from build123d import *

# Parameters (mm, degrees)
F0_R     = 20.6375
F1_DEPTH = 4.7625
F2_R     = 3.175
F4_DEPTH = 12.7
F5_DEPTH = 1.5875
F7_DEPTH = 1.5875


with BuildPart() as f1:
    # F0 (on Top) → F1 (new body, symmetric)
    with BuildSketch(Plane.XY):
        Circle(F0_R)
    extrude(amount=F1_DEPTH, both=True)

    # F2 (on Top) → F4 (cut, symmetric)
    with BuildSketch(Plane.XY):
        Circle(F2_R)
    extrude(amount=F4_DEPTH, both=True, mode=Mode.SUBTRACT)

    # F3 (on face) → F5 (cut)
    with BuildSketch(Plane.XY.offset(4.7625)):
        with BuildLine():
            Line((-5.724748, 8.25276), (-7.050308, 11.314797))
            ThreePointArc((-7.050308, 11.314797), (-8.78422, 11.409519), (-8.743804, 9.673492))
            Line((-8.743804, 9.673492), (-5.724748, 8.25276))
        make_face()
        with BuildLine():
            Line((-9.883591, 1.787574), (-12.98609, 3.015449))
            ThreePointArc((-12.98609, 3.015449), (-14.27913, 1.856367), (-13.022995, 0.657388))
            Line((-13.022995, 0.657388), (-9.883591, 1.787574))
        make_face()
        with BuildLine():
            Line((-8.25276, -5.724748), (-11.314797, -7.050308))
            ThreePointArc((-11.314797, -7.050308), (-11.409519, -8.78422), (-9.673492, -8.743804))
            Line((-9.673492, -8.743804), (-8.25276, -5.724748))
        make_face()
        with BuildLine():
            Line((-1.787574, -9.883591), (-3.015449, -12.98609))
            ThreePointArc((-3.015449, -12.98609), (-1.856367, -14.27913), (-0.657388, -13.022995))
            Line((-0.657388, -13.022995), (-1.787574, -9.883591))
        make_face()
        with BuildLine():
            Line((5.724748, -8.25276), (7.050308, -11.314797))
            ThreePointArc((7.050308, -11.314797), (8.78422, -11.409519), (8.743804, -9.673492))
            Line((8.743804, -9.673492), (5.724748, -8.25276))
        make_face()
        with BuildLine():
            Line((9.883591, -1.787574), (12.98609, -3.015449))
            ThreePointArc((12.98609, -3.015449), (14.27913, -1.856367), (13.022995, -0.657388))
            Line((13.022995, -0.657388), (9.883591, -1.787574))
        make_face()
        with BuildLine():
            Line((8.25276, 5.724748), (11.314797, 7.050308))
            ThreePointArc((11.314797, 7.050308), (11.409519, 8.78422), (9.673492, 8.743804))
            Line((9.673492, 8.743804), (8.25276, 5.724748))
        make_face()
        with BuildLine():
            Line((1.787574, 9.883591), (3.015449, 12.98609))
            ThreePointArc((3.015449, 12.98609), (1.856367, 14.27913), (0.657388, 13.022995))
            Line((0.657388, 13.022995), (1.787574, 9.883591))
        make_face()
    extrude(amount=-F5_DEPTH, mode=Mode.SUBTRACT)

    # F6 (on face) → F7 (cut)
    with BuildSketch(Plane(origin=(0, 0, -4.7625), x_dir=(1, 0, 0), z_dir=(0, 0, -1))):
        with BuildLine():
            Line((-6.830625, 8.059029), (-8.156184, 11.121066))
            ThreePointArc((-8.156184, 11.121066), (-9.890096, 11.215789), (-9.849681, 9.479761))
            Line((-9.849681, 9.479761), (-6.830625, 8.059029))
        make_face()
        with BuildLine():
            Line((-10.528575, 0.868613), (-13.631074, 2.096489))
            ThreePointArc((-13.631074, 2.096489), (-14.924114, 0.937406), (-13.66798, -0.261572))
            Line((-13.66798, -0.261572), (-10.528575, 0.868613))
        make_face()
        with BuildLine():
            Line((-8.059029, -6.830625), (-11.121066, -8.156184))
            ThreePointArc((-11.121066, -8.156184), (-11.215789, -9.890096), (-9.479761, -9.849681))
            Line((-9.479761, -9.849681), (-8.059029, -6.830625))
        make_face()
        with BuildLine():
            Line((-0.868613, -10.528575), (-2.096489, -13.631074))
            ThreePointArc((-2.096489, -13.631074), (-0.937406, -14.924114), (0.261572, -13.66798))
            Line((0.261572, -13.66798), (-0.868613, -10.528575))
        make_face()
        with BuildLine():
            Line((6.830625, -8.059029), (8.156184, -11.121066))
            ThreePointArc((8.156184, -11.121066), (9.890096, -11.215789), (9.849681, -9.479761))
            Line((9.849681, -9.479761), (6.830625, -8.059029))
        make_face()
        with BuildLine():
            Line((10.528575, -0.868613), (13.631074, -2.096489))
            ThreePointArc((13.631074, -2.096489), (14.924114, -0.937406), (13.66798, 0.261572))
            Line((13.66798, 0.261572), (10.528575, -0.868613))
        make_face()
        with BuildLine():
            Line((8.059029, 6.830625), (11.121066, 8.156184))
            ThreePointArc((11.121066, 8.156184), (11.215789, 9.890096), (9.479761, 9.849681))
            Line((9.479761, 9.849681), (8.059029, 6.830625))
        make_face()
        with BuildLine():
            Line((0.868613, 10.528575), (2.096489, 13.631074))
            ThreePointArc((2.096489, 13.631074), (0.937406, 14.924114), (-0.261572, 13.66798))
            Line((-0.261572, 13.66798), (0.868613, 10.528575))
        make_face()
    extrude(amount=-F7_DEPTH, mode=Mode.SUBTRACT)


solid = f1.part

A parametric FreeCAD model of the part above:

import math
import FreeCAD as App
import Part
import Sketcher
from FreeCAD import Vector
Q = App.Units.Quantity

doc = App.newDocument("Part")
body = doc.addObject("PartDesign::Body", "Body")

# Sketch on XY plane
sketch1 = body.newObject("Sketcher::SketchObject", "Sketch")
sketch1.AttachmentSupport = (doc.getObject("XY_Plane"), [""])
sketch1.MapMode = "FlatFace"
sketch1.addGeometry(Part.Circle(Vector(0, 0, 0), Vector(0, 0, 1), 20.6375), False)
sketch1.addConstraint(Sketcher.Constraint("Coincident", 0, 3, -1, 1))
sketch1.addConstraint(Sketcher.Constraint("Diameter", 0, Q("1.625 in")))
pad1 = body.newObject("PartDesign::Pad", "Pad")
pad1.Profile = sketch1
pad1.Length = Q("0.375 in")
pad1.Midplane = True

# Sketch on XY plane
sketch2 = body.newObject("Sketcher::SketchObject", "Sketch001")
sketch2.AttachmentSupport = (doc.getObject("XY_Plane"), [""])
sketch2.MapMode = "FlatFace"
sketch2.addGeometry(Part.Circle(Vector(0, 0, 0), Vector(0, 0, 1), 3.175), False)
sketch2.addConstraint(Sketcher.Constraint("Coincident", 0, 3, -1, 1))
sketch2.addConstraint(Sketcher.Constraint("Diameter", 0, Q("0.25 in")))
pocket1 = body.newObject("PartDesign::Pocket", "Pocket")
pocket1.Profile = sketch2
pocket1.Length = Q("1 in")
pocket1.Midplane = True

# Sketch on XY plane
sketch3 = body.newObject("Sketcher::SketchObject", "Sketch002")
sketch3.AttachmentSupport = (doc.getObject("XY_Plane"), [""])
sketch3.MapMode = "FlatFace"
sketch3.AttachmentOffset = App.Placement(Vector(0, 0, 0.1875 * 25.4), App.Rotation())
sketch3.addGeometry(Part.LineSegment(Vector(-5.724748, 8.25276, 0), Vector(-7.050308, 11.314797, 0)), False)
sketch3.addGeometry(Part.ArcOfCircle(Part.Circle(Vector(-7.961074, 10.560198, 0), Vector(0, 0, 1), 1.182757), math.radians(39.642816), math.radians(228.563925)), False)
sketch3.addGeometry(Part.LineSegment(Vector(-8.743804, 9.673492, 0), Vector(-5.724748, 8.25276, 0)), False)
sketch3.addGeometry(Part.LineSegment(Vector(-9.883591, 1.787574, 0), Vector(-12.98609, 3.015449, 0)), False)
sketch3.addGeometry(Part.ArcOfCircle(Part.Circle(Vector(-13.096518, 1.837858, 0), Vector(0, 0, 1), 1.182757), math.radians(84.642808), math.radians(273.563915)), False)
sketch3.addGeometry(Part.LineSegment(Vector(-13.022995, 0.657388, 0), Vector(-9.883591, 1.787574, 0)), False)
sketch3.addGeometry(Part.LineSegment(Vector(-8.25276, -5.724748, 0), Vector(-11.314797, -7.050308, 0)), False)
sketch3.addGeometry(Part.ArcOfCircle(Part.Circle(Vector(-10.560198, -7.961074, 0), Vector(0, 0, 1), 1.182757), math.radians(129.642816), math.radians(318.563925)), False)
sketch3.addGeometry(Part.LineSegment(Vector(-9.673492, -8.743804, 0), Vector(-8.25276, -5.724748, 0)), False)
sketch3.addGeometry(Part.LineSegment(Vector(-1.787574, -9.883591, 0), Vector(-3.015449, -12.98609, 0)), False)
sketch3.addGeometry(Part.ArcOfCircle(Part.Circle(Vector(-1.837858, -13.096518, 0), Vector(0, 0, 1), 1.182757), math.radians(174.642808), math.radians(363.563915)), False)
sketch3.addGeometry(Part.LineSegment(Vector(-0.657388, -13.022995, 0), Vector(-1.787574, -9.883591, 0)), False)
sketch3.addGeometry(Part.LineSegment(Vector(5.724748, -8.25276, 0), Vector(7.050308, -11.314797, 0)), False)
sketch3.addGeometry(Part.ArcOfCircle(Part.Circle(Vector(7.961074, -10.560198, 0), Vector(0, 0, 1), 1.182757), math.radians(-140.357184), math.radians(48.563925)), False)
sketch3.addGeometry(Part.LineSegment(Vector(8.743804, -9.673492, 0), Vector(5.724748, -8.25276, 0)), False)
sketch3.addGeometry(Part.LineSegment(Vector(9.883591, -1.787574, 0), Vector(12.98609, -3.015449, 0)), False)
sketch3.addGeometry(Part.ArcOfCircle(Part.Circle(Vector(13.096518, -1.837858, 0), Vector(0, 0, 1), 1.182757), math.radians(-95.357192), math.radians(93.563915)), False)
sketch3.addGeometry(Part.LineSegment(Vector(13.022995, -0.657388, 0), Vector(9.883591, -1.787574, 0)), False)
sketch3.addGeometry(Part.LineSegment(Vector(8.25276, 5.724748, 0), Vector(11.314797, 7.050308, 0)), False)
sketch3.addGeometry(Part.ArcOfCircle(Part.Circle(Vector(10.560198, 7.961074, 0), Vector(0, 0, 1), 1.182757), math.radians(-50.357184), math.radians(138.563925)), False)
sketch3.addGeometry(Part.LineSegment(Vector(9.673492, 8.743804, 0), Vector(8.25276, 5.724748, 0)), False)
sketch3.addGeometry(Part.LineSegment(Vector(1.787574, 9.883591, 0), Vector(3.015449, 12.98609, 0)), False)
sketch3.addGeometry(Part.ArcOfCircle(Part.Circle(Vector(1.837858, 13.096518, 0), Vector(0, 0, 1), 1.182757), math.radians(-5.357192), math.radians(183.563915)), False)
sketch3.addGeometry(Part.LineSegment(Vector(0.657388, 13.022995, 0), Vector(1.787574, 9.883591, 0)), False)
sketch3.addConstraint(Sketcher.Constraint("Coincident", 0, 2, 1, 1))
sketch3.addConstraint(Sketcher.Constraint("Coincident", 1, 2, 2, 1))
sketch3.addConstraint(Sketcher.Constraint("Coincident", 2, 2, 0, 1))
sketch3.addConstraint(Sketcher.Constraint("Coincident", 3, 2, 4, 1))
sketch3.addConstraint(Sketcher.Constraint("Coincident", 4, 2, 5, 1))
sketch3.addConstraint(Sketcher.Constraint("Coincident", 5, 2, 3, 1))
sketch3.addConstraint(Sketcher.Constraint("Coincident", 6, 2, 7, 1))
sketch3.addConstraint(Sketcher.Constraint("Coincident", 7, 2, 8, 1))
sketch3.addConstraint(Sketcher.Constraint("Coincident", 8, 2, 6, 1))
sketch3.addConstraint(Sketcher.Constraint("Coincident", 9, 2, 10, 1))
sketch3.addConstraint(Sketcher.Constraint("Coincident", 10, 2, 11, 1))
sketch3.addConstraint(Sketcher.Constraint("Coincident", 11, 2, 9, 1))
sketch3.addConstraint(Sketcher.Constraint("Coincident", 12, 2, 13, 1))
sketch3.addConstraint(Sketcher.Constraint("Coincident", 13, 2, 14, 1))
sketch3.addConstraint(Sketcher.Constraint("Coincident", 14, 2, 12, 1))
sketch3.addConstraint(Sketcher.Constraint("Coincident", 15, 2, 16, 1))
sketch3.addConstraint(Sketcher.Constraint("Coincident", 16, 2, 17, 1))
sketch3.addConstraint(Sketcher.Constraint("Coincident", 17, 2, 15, 1))
sketch3.addConstraint(Sketcher.Constraint("Coincident", 18, 2, 19, 1))
sketch3.addConstraint(Sketcher.Constraint("Coincident", 19, 2, 20, 1))
sketch3.addConstraint(Sketcher.Constraint("Coincident", 20, 2, 18, 1))
sketch3.addConstraint(Sketcher.Constraint("Coincident", 21, 2, 22, 1))
sketch3.addConstraint(Sketcher.Constraint("Coincident", 22, 2, 23, 1))
sketch3.addConstraint(Sketcher.Constraint("Coincident", 23, 2, 21, 1))
sketch3.addConstraint(Sketcher.Constraint("Equal", 1, 4))
sketch3.addConstraint(Sketcher.Constraint("Equal", 4, 7))
sketch3.addConstraint(Sketcher.Constraint("Equal", 7, 10))
sketch3.addConstraint(Sketcher.Constraint("Equal", 10, 13))
sketch3.addConstraint(Sketcher.Constraint("Equal", 13, 16))
sketch3.addConstraint(Sketcher.Constraint("Equal", 16, 19))
sketch3.addConstraint(Sketcher.Constraint("Equal", 19, 22))
sketch3.addConstraint(Sketcher.Constraint("Symmetric", 1, 3, 13, 3, -1, 1))
sketch3.addConstraint(Sketcher.Constraint("Symmetric", 4, 3, 16, 3, -1, 1))
sketch3.addConstraint(Sketcher.Constraint("Symmetric", 7, 3, 19, 3, -1, 1))
sketch3.addConstraint(Sketcher.Constraint("Symmetric", 10, 3, 22, 3, -1, 1))
sketch3.addConstraint(Sketcher.Constraint("Symmetric", 2, 2, 14, 2, -1, 1))
sketch3.addConstraint(Sketcher.Constraint("Symmetric", 5, 2, 17, 2, -1, 1))
sketch3.addConstraint(Sketcher.Constraint("Symmetric", 8, 2, 20, 2, -1, 1))
sketch3.addConstraint(Sketcher.Constraint("Symmetric", 11, 2, 23, 2, -1, 1))
sketch3.addConstraint(Sketcher.Constraint("Perpendicular", 0, 6))
sketch3.addConstraint(Sketcher.Constraint("Perpendicular", 2, 8))
sketch3.addConstraint(Sketcher.Constraint("Perpendicular", 3, 9))
sketch3.addConstraint(Sketcher.Constraint("Perpendicular", 5, 11))
sketch3.addConstraint(Sketcher.Constraint("Perpendicular", 6, 12))
sketch3.addConstraint(Sketcher.Constraint("Perpendicular", 8, 14))
sketch3.addConstraint(Sketcher.Constraint("Perpendicular", 9, 15))
sketch3.addConstraint(Sketcher.Constraint("Perpendicular", 11, 17))
sketch3.addConstraint(Sketcher.Constraint("Perpendicular", 12, 18))
sketch3.addConstraint(Sketcher.Constraint("Perpendicular", 14, 20))
sketch3.addConstraint(Sketcher.Constraint("Perpendicular", 15, 21))
sketch3.addConstraint(Sketcher.Constraint("Perpendicular", 17, 23))
sketch3.addConstraint(Sketcher.Constraint("Equal", 0, 2))
sketch3.addConstraint(Sketcher.Constraint("Equal", 2, 3))
sketch3.addConstraint(Sketcher.Constraint("Equal", 3, 5))
sketch3.addConstraint(Sketcher.Constraint("Equal", 5, 6))
sketch3.addConstraint(Sketcher.Constraint("Equal", 6, 8))
sketch3.addConstraint(Sketcher.Constraint("Equal", 8, 9))
sketch3.addConstraint(Sketcher.Constraint("Equal", 9, 11))
sketch3.addConstraint(Sketcher.Constraint("Radius", 1, Q("1.182757 mm")))
sketch3.addConstraint(Sketcher.Constraint("DistanceY", -1, 1, 1, 3, Q("10.560198 mm")))
sketch3.addConstraint(Sketcher.Constraint("DistanceX", 7, 3, -1, 1, Q("10.560198 mm")))
sketch3.addConstraint(Sketcher.Constraint("DistanceY", 1, 3, 0, 2, Q("0.754599 mm")))
sketch3.addConstraint(Sketcher.Constraint("DistanceX", 3, 2, 5, 2, Q("3.102499 mm")))
sketch3.addConstraint(Sketcher.Constraint("DistanceX", 5, 2, 7, 2, Q("0.210099 mm")))
sketch3.addConstraint(Sketcher.Constraint("DistanceY", 11, 2, 13, 2, Q("0.210099 mm")))
sketch3.addConstraint(Sketcher.Constraint("Distance", 2, Q("3.336642 mm")))
sketch3.addConstraint(Sketcher.Constraint("DistanceX", 0, 2, -1, 1, Q("7.050308 mm")))
sketch3.addConstraint(Sketcher.Constraint("DistanceY", -1, 1, 2, 2, Q("8.25276 mm")))
sketch3.addConstraint(Sketcher.Constraint("DistanceY", -1, 1, 3, 2, Q("3.015449 mm")))
sketch3.addConstraint(Sketcher.Constraint("DistanceY", 6, 2, -1, 1, Q("7.050308 mm")))
sketch3.addConstraint(Sketcher.Constraint("DistanceX", 9, 2, -1, 1, Q("3.015449 mm")))
sketch3.addConstraint(Sketcher.Constraint("DistanceY", 4, 3, 1, 3, Q("8.722341 mm")))
pocket2 = body.newObject("PartDesign::Pocket", "Pocket001")
pocket2.Profile = sketch3
pocket2.Length = Q("0.0625 in")

# Sketch on XY plane
sketch4 = body.newObject("Sketcher::SketchObject", "Sketch003")
sketch4.AttachmentSupport = (doc.getObject("XY_Plane"), [""])
sketch4.MapMode = "FlatFace"
sketch4.AttachmentOffset = App.Placement(Vector(0, 0, -0.1875 * 25.4), App.Rotation())
sketch4.addGeometry(Part.LineSegment(Vector(-6.830625, -8.059029, 0), Vector(-8.156184, -11.121066, 0)), False)
sketch4.addGeometry(Part.ArcOfCircle(Part.Circle(Vector(-9.066951, -10.366468, 0), Vector(0, 0, 1), 1.182757), math.radians(131.436092), math.radians(320.3572)), False)
sketch4.addGeometry(Part.LineSegment(Vector(-9.849681, -9.479761, 0), Vector(-6.830625, -8.059029, 0)), False)
sketch4.addGeometry(Part.LineSegment(Vector(-10.528575, -0.868613, 0), Vector(-13.631074, -2.096489, 0)), False)
sketch4.addGeometry(Part.ArcOfCircle(Part.Circle(Vector(-13.741502, -0.918898, 0), Vector(0, 0, 1), 1.182757), math.radians(86.436132), math.radians(275.357193)), False)
sketch4.addGeometry(Part.LineSegment(Vector(-13.66798, 0.261572, 0), Vector(-10.528575, -0.868613, 0)), False)
sketch4.addGeometry(Part.LineSegment(Vector(-8.059029, 6.830625, 0), Vector(-11.121066, 8.156184, 0)), False)
sketch4.addGeometry(Part.ArcOfCircle(Part.Circle(Vector(-10.366468, 9.066951, 0), Vector(0, 0, 1), 1.182757), math.radians(41.436092), math.radians(230.3572)), False)
sketch4.addGeometry(Part.LineSegment(Vector(-9.479761, 9.849681, 0), Vector(-8.059029, 6.830625, 0)), False)
sketch4.addGeometry(Part.LineSegment(Vector(-0.868613, 10.528575, 0), Vector(-2.096489, 13.631074, 0)), False)
sketch4.addGeometry(Part.ArcOfCircle(Part.Circle(Vector(-0.918898, 13.741502, 0), Vector(0, 0, 1), 1.182757), math.radians(-3.563868), math.radians(185.357193)), False)
sketch4.addGeometry(Part.LineSegment(Vector(0.261572, 13.66798, 0), Vector(-0.868613, 10.528575, 0)), False)
sketch4.addGeometry(Part.LineSegment(Vector(6.830625, 8.059029, 0), Vector(8.156184, 11.121066, 0)), False)
sketch4.addGeometry(Part.ArcOfCircle(Part.Circle(Vector(9.066951, 10.366468, 0), Vector(0, 0, 1), 1.182757), math.radians(-48.563908), math.radians(140.3572)), False)
sketch4.addGeometry(Part.LineSegment(Vector(9.849681, 9.479761, 0), Vector(6.830625, 8.059029, 0)), False)
sketch4.addGeometry(Part.LineSegment(Vector(10.528575, 0.868613, 0), Vector(13.631074, 2.096489, 0)), False)
sketch4.addGeometry(Part.ArcOfCircle(Part.Circle(Vector(13.741502, 0.918898, 0), Vector(0, 0, 1), 1.182757), math.radians(-93.563868), math.radians(95.357193)), False)
sketch4.addGeometry(Part.LineSegment(Vector(13.66798, -0.261572, 0), Vector(10.528575, 0.868613, 0)), False)
sketch4.addGeometry(Part.LineSegment(Vector(8.059029, -6.830625, 0), Vector(11.121066, -8.156184, 0)), False)
sketch4.addGeometry(Part.ArcOfCircle(Part.Circle(Vector(10.366468, -9.066951, 0), Vector(0, 0, 1), 1.182757), math.radians(-138.563908), math.radians(50.3572)), False)
sketch4.addGeometry(Part.LineSegment(Vector(9.479761, -9.849681, 0), Vector(8.059029, -6.830625, 0)), False)
sketch4.addGeometry(Part.LineSegment(Vector(0.868613, -10.528575, 0), Vector(2.096489, -13.631074, 0)), False)
sketch4.addGeometry(Part.ArcOfCircle(Part.Circle(Vector(0.918898, -13.741502, 0), Vector(0, 0, 1), 1.182757), math.radians(176.436132), math.radians(365.357193)), False)
sketch4.addGeometry(Part.LineSegment(Vector(-0.261572, -13.66798, 0), Vector(0.868613, -10.528575, 0)), False)
sketch4.addConstraint(Sketcher.Constraint("Coincident", 0, 2, 1, 2))
sketch4.addConstraint(Sketcher.Constraint("Coincident", 1, 1, 2, 1))
sketch4.addConstraint(Sketcher.Constraint("Coincident", 2, 2, 0, 1))
sketch4.addConstraint(Sketcher.Constraint("Coincident", 3, 2, 4, 2))
sketch4.addConstraint(Sketcher.Constraint("Coincident", 4, 1, 5, 1))
sketch4.addConstraint(Sketcher.Constraint("Coincident", 5, 2, 3, 1))
sketch4.addConstraint(Sketcher.Constraint("Coincident", 6, 2, 7, 2))
sketch4.addConstraint(Sketcher.Constraint("Coincident", 7, 1, 8, 1))
sketch4.addConstraint(Sketcher.Constraint("Coincident", 8, 2, 6, 1))
sketch4.addConstraint(Sketcher.Constraint("Coincident", 9, 2, 10, 2))
sketch4.addConstraint(Sketcher.Constraint("Coincident", 10, 1, 11, 1))
sketch4.addConstraint(Sketcher.Constraint("Coincident", 11, 2, 9, 1))
sketch4.addConstraint(Sketcher.Constraint("Coincident", 12, 2, 13, 2))
sketch4.addConstraint(Sketcher.Constraint("Coincident", 13, 1, 14, 1))
sketch4.addConstraint(Sketcher.Constraint("Coincident", 14, 2, 12, 1))
sketch4.addConstraint(Sketcher.Constraint("Coincident", 15, 2, 16, 2))
sketch4.addConstraint(Sketcher.Constraint("Coincident", 16, 1, 17, 1))
sketch4.addConstraint(Sketcher.Constraint("Coincident", 17, 2, 15, 1))
sketch4.addConstraint(Sketcher.Constraint("Coincident", 18, 2, 19, 2))
sketch4.addConstraint(Sketcher.Constraint("Coincident", 19, 1, 20, 1))
sketch4.addConstraint(Sketcher.Constraint("Coincident", 20, 2, 18, 1))
sketch4.addConstraint(Sketcher.Constraint("Coincident", 21, 2, 22, 2))
sketch4.addConstraint(Sketcher.Constraint("Coincident", 22, 1, 23, 1))
sketch4.addConstraint(Sketcher.Constraint("Coincident", 23, 2, 21, 1))
sketch4.addConstraint(Sketcher.Constraint("Equal", 1, 4))
sketch4.addConstraint(Sketcher.Constraint("Equal", 4, 7))
sketch4.addConstraint(Sketcher.Constraint("Equal", 7, 10))
sketch4.addConstraint(Sketcher.Constraint("Equal", 10, 13))
sketch4.addConstraint(Sketcher.Constraint("Equal", 13, 16))
sketch4.addConstraint(Sketcher.Constraint("Equal", 16, 19))
sketch4.addConstraint(Sketcher.Constraint("Equal", 19, 22))
sketch4.addConstraint(Sketcher.Constraint("Symmetric", 1, 3, 13, 3, -1, 1))
sketch4.addConstraint(Sketcher.Constraint("Symmetric", 4, 3, 16, 3, -1, 1))
sketch4.addConstraint(Sketcher.Constraint("Symmetric", 7, 3, 19, 3, -1, 1))
sketch4.addConstraint(Sketcher.Constraint("Symmetric", 10, 3, 22, 3, -1, 1))
sketch4.addConstraint(Sketcher.Constraint("Symmetric", 2, 2, 14, 2, -1, 1))
sketch4.addConstraint(Sketcher.Constraint("Symmetric", 5, 2, 17, 2, -1, 1))
sketch4.addConstraint(Sketcher.Constraint("Symmetric", 8, 2, 20, 2, -1, 1))
sketch4.addConstraint(Sketcher.Constraint("Symmetric", 11, 2, 23, 2, -1, 1))
sketch4.addConstraint(Sketcher.Constraint("Perpendicular", 0, 6))
sketch4.addConstraint(Sketcher.Constraint("Perpendicular", 2, 8))
sketch4.addConstraint(Sketcher.Constraint("Perpendicular", 3, 9))
sketch4.addConstraint(Sketcher.Constraint("Perpendicular", 5, 11))
sketch4.addConstraint(Sketcher.Constraint("Perpendicular", 6, 12))
sketch4.addConstraint(Sketcher.Constraint("Perpendicular", 8, 14))
sketch4.addConstraint(Sketcher.Constraint("Perpendicular", 9, 15))
sketch4.addConstraint(Sketcher.Constraint("Perpendicular", 11, 17))
sketch4.addConstraint(Sketcher.Constraint("Perpendicular", 12, 18))
sketch4.addConstraint(Sketcher.Constraint("Perpendicular", 14, 20))
sketch4.addConstraint(Sketcher.Constraint("Perpendicular", 15, 21))
sketch4.addConstraint(Sketcher.Constraint("Perpendicular", 17, 23))
sketch4.addConstraint(Sketcher.Constraint("Equal", 0, 2))
sketch4.addConstraint(Sketcher.Constraint("Equal", 2, 3))
sketch4.addConstraint(Sketcher.Constraint("Equal", 3, 5))
sketch4.addConstraint(Sketcher.Constraint("Equal", 5, 6))
sketch4.addConstraint(Sketcher.Constraint("Equal", 6, 8))
sketch4.addConstraint(Sketcher.Constraint("Equal", 8, 9))
sketch4.addConstraint(Sketcher.Constraint("Equal", 9, 11))
sketch4.addConstraint(Sketcher.Constraint("Radius", 1, Q("1.182757 mm")))
sketch4.addConstraint(Sketcher.Constraint("DistanceX", 4, 3, -1, 1, Q("13.741502 mm")))
sketch4.addConstraint(Sketcher.Constraint("DistanceY", -1, 1, 10, 3, Q("13.741502 mm")))
sketch4.addConstraint(Sketcher.Constraint("DistanceY", 4, 3, 10, 3, Q("14.6604 mm")))
sketch4.addConstraint(Sketcher.Constraint("DistanceX", 1, 3, 13, 3, Q("18.133902 mm")))
sketch4.addConstraint(Sketcher.Constraint("DistanceX", 10, 3, 16, 3, Q("14.6604 mm")))
sketch4.addConstraint(Sketcher.Constraint("DistanceY", 0, 2, 1, 3, Q("0.754598 mm")))
sketch4.addConstraint(Sketcher.Constraint("DistanceX", 4, 1, 1, 1, Q("3.818299 mm")))
sketch4.addConstraint(Sketcher.Constraint("DistanceY", 2, 2, 4, 1, Q("8.320601 mm")))
sketch4.addConstraint(Sketcher.Constraint("DistanceX", 3, 2, 5, 2, Q("3.102499 mm")))
sketch4.addConstraint(Sketcher.Constraint("DistanceY", 7, 1, 10, 1, Q("3.818299 mm")))
sketch4.addConstraint(Sketcher.Constraint("DistanceX", 8, 2, 10, 1, Q("8.320601 mm")))
sketch4.addConstraint(Sketcher.Constraint("Distance", 0, Q("3.336642 mm")))
sketch4.addConstraint(Sketcher.Constraint("DistanceX", 1, 1, -1, 1, Q("9.849681 mm")))
pocket3 = body.newObject("PartDesign::Pocket", "Pocket002")
pocket3.Profile = sketch4
pocket3.Length = Q("0.0625 in")
pocket3.Reversed = True

doc.recompute()
